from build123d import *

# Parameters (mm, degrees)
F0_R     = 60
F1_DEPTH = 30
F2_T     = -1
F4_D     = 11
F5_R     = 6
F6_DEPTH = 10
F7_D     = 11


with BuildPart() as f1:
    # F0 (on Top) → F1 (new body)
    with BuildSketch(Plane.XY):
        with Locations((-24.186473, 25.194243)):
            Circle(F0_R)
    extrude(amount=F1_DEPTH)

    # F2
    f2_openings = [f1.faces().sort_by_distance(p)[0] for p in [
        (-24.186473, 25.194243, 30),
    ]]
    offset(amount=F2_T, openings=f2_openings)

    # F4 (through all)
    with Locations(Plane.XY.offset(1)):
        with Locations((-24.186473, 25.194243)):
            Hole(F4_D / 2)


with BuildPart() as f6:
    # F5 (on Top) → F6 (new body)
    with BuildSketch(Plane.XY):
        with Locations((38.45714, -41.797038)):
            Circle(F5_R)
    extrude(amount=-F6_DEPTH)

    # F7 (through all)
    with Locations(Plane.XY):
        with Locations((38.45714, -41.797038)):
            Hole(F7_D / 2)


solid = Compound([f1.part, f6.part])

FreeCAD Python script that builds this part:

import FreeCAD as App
import Part
import Sketcher

V = App.Vector


def faces_at(feature, points):
    """Names of the faces that lie closest to the given points."""
    faces = feature.Shape.Faces
    near = lambda p: min(range(len(faces)), key=lambda i: faces[i].distToShape(Part.Vertex(*p))[0])
    return sorted({f"Face{near(p) + 1}" for p in points})

doc = App.newDocument("Part")
body = doc.addObject("PartDesign::Body", "Body")

sketch1 = body.newObject("Sketcher::SketchObject", "Sketch")
sketch1.AttachmentSupport = (doc.getObject("XY_Plane"), [""])
sketch1.MapMode = "FlatFace"
sketch1.addGeometry(Part.Circle(V(-24, 25, 0), V(0, 0, 1), 60), False)
sketch1.addConstraint(Sketcher.Constraint("Diameter", 0, 120.0))
sketch1.addConstraint(Sketcher.Constraint("DistanceX", 0, 3, -1, 1, 24.186473))
sketch1.addConstraint(Sketcher.Constraint("DistanceY", -1, 1, 0, 3, 25.194243))
pad1 = body.newObject("PartDesign::Pad", "Pad")
pad1.Profile = sketch1
pad1.Length = 30
doc.recompute()

thickness = body.newObject("PartDesign::Thickness", "Thickness")
thickness.Base = (pad1, faces_at(pad1, [(-24.186, 25.194, 30)]))
thickness.Value = 1
thickness.Reversed = True
thickness.Join = "Arc"

sketch2 = body.newObject("Sketcher::SketchObject", "Sketch001")
sketch2.AttachmentSupport = (doc.getObject("XY_Plane"), [""])
sketch2.MapMode = "FlatFace"
sketch2.AttachmentOffset = App.Placement(V(0, 0, 1), App.Rotation())
sketch2.addGeometry(Part.Circle(V(-24, 25, 0), V(0, 0, 1), 6), False)
sketch2.addConstraint(Sketcher.Constraint("Diameter", 0, 11.0))
sketch2.addConstraint(Sketcher.Constraint("DistanceX", 0, 3, -1, 1, 24.186473))
sketch2.addConstraint(Sketcher.Constraint("DistanceY", -1, 1, 0, 3, 25.194243))
doc.recompute()
hole = body.newObject("PartDesign::Hole", "Hole")
hole.Profile = sketch2
hole.ThreadType = "None"
hole.Diameter = 11
hole.DepthType = "ThroughAll"
body2 = doc.addObject("PartDesign::Body", "Body001")

sketch3 = body2.newObject("Sketcher::SketchObject", "Sketch002")
sketch3.AttachmentSupport = (doc.getObject("XY_Plane001"), [""])
sketch3.MapMode = "FlatFace"
sketch3.addGeometry(Part.Circle(V(38, -42, 0), V(0, 0, 1), 6), False)
sketch3.addConstraint(Sketcher.Constraint("Diameter", 0, 12.0))
sketch3.addConstraint(Sketcher.Constraint("DistanceX", -1, 1, 0, 3, 38.45714))
sketch3.addConstraint(Sketcher.Constraint("DistanceY", 0, 3, -1, 1, 41.797038))
pad2 = body2.newObject("PartDesign::Pad", "Pad001")
pad2.Profile = sketch3
pad2.Length = 10
pad2.Reversed = True

sketch4 = body2.newObject("Sketcher::SketchObject", "Sketch003")
sketch4.AttachmentSupport = (doc.getObject("XY_Plane001"), [""])
sketch4.MapMode = "FlatFace"
sketch4.addGeometry(Part.Circle(V(38, -42, 0), V(0, 0, 1), 6), False)
sketch4.addConstraint(Sketcher.Constraint("Diameter", 0, 11.0))
sketch4.addConstraint(Sketcher.Constraint("DistanceX", -1, 1, 0, 3, 38.45714))
sketch4.addConstraint(Sketcher.Constraint("DistanceY", 0, 3, -1, 1, 41.797038))
doc.recompute()
hole2 = body2.newObject("PartDesign::Hole", "Hole001")
hole2.Profile = sketch4
hole2.ThreadType = "None"
hole2.Diameter = 11
hole2.DepthType = "ThroughAll"

doc.recompute()
